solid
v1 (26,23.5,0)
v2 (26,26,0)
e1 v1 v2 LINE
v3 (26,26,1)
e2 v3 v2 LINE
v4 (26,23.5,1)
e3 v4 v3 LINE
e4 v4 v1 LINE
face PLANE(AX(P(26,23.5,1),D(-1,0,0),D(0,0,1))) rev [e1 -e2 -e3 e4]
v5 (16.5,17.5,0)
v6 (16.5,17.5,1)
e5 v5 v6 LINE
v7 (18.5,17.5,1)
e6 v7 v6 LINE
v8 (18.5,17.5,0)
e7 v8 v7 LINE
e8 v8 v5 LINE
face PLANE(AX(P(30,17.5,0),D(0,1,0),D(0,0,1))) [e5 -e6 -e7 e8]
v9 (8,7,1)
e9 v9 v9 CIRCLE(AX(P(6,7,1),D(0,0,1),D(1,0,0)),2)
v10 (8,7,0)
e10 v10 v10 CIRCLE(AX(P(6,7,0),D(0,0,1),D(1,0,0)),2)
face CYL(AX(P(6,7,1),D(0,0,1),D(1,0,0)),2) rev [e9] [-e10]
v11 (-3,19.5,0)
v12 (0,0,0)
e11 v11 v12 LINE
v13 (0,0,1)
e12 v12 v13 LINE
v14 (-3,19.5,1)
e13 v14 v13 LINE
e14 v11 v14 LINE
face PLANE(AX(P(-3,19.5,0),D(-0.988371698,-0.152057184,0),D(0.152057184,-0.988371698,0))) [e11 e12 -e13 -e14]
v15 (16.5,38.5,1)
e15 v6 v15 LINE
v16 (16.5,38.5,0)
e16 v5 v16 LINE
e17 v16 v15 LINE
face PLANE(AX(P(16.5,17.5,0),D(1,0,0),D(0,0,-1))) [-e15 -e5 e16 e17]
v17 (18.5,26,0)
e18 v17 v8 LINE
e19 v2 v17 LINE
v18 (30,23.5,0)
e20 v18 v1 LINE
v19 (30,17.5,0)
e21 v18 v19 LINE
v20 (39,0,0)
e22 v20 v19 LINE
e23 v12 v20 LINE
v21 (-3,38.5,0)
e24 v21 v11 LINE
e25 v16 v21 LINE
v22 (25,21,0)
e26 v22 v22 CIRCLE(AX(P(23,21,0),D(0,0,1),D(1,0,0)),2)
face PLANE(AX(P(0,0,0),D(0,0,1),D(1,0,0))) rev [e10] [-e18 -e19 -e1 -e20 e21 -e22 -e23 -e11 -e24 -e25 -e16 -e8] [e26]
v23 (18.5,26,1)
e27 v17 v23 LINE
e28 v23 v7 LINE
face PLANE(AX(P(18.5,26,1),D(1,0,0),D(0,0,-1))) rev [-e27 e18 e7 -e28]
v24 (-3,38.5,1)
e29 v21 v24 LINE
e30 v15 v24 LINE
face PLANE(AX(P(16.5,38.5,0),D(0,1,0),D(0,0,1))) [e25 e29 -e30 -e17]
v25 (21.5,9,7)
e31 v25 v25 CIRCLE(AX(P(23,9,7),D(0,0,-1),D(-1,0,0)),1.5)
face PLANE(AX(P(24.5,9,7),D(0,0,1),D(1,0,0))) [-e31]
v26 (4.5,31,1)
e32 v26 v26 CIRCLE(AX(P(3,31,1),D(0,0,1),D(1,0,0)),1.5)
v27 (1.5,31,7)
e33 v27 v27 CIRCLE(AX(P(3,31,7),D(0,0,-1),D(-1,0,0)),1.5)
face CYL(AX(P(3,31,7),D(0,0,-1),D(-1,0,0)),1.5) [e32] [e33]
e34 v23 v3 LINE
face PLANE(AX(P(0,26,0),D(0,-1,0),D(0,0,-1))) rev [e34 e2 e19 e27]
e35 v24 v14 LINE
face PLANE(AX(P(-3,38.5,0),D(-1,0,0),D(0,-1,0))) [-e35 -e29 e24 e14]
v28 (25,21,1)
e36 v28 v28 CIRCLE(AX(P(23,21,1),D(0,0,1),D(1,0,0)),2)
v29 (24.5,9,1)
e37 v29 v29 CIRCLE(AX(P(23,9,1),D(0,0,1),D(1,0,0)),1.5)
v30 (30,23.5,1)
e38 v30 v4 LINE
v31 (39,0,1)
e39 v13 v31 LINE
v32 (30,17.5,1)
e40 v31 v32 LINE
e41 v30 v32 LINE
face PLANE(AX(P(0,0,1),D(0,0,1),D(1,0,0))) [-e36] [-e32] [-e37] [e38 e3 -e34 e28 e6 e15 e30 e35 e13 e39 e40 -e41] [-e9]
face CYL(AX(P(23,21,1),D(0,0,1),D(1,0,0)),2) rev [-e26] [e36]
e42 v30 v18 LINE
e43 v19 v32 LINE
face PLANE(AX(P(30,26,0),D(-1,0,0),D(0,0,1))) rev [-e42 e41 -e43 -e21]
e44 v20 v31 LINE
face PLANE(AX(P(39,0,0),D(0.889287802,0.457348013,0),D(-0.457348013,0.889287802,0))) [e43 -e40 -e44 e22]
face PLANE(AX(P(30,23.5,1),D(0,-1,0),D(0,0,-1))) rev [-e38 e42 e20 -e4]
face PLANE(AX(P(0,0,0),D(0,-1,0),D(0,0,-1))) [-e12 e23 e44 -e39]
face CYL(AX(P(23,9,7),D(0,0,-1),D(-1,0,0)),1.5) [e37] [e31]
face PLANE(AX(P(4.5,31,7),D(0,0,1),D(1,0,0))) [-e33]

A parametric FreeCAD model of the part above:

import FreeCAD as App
import Part
import Sketcher
from FreeCAD import Vector
Q = App.Units.Quantity

doc = App.newDocument("Part")
params = doc.addObject("Spreadsheet::Sheet", "Params")
for row, (alias, value) in enumerate([
    ("sketch1_width", "39 mm"),
    ("sketch1_height", "21 mm"),
    ("sketch1_height2", "19 mm"),
    ("sketch1_width2", "13.5 mm"),
    ("sketch1_width3", "19.5 mm"),
    ("pad1_length", "1 mm"),
    ("sketch2_height", "1 mm"),
    ("sketch2_width", "11.5 mm"),
    ("pad2_length", "8.5 mm"),
    ("sketch3_width", "4 mm"),
    ("sketch3_height", "2.5 mm"),
    ("sketch4_height", "6 mm"),
    ("sketch4_width", "1.5 mm"),
    ("revolution_angle", "360 deg"),
    ("sketch5_height", "6 mm"),
    ("sketch5_width", "1.5 mm"),
    ("revolution2_angle", "360 deg"),
    ("sketch6_diameter", "4 mm"),
    ("hole_diameter", "4 mm"),
], start=1):
    params.set(f"A{row}", alias)
    params.set(f"B{row}", "=" + value)
    params.setAlias(f"B{row}", alias)

body = doc.addObject("PartDesign::Body", "Body")

sketch1 = body.newObject("Sketcher::SketchObject", "Sketch")
sketch1.AttachmentSupport = (doc.getObject("XY_Plane"), [""])
sketch1.MapMode = "FlatFace"
sketch1.AttachmentOffset = App.Placement(Vector(0, 0, 1), App.Rotation())
sketch1.addGeometry(Part.LineSegment(Vector(39, 0, 0), Vector(30, 18, 0)), False)
sketch1.addGeometry(Part.LineSegment(Vector(30, 18, 0), Vector(16, 18, 0)), False)
sketch1.addGeometry(Part.LineSegment(Vector(16, 18, 0), Vector(16, 38, 0)), False)
sketch1.addGeometry(Part.LineSegment(Vector(16, 38, 0), Vector(-3, 38, 0)), False)
sketch1.addGeometry(Part.LineSegment(Vector(-3, 38, 0), Vector(-3, 20, 0)), False)
sketch1.addGeometry(Part.LineSegment(Vector(-3, 20, 0), Vector(0, 0, 0)), False)
sketch1.addGeometry(Part.LineSegment(Vector(0, 0, 0), Vector(39, 0, 0)), False)
sketch1.addConstraint(Sketcher.Constraint("Coincident", 0, 2, 1, 1))
sketch1.addConstraint(Sketcher.Constraint("Coincident", 1, 2, 2, 1))
sketch1.addConstraint(Sketcher.Constraint("Coincident", 2, 2, 3, 1))
sketch1.addConstraint(Sketcher.Constraint("Coincident", 3, 2, 4, 1))
sketch1.addConstraint(Sketcher.Constraint("Coincident", 4, 2, 5, 1))
sketch1.addConstraint(Sketcher.Constraint("Coincident", 5, 2, 6, 1))
sketch1.addConstraint(Sketcher.Constraint("Coincident", 6, 2, 0, 1))
sketch1.addConstraint(Sketcher.Constraint("Horizontal", 1))
sketch1.addConstraint(Sketcher.Constraint("Vertical", 2))
sketch1.addConstraint(Sketcher.Constraint("Horizontal", 3))
sketch1.addConstraint(Sketcher.Constraint("Vertical", 4))
sketch1.addConstraint(Sketcher.Constraint("Horizontal", 6))
sketch1.addConstraint(Sketcher.Constraint("Coincident", 5, 2, -1, 1))
sketch1.addConstraint(Sketcher.Constraint("DistanceX", 6, 1, 6, 2, Q("39 mm")))
sketch1.addConstraint(Sketcher.Constraint("DistanceY", 2, 1, 2, 2, Q("21 mm")))
sketch1.addConstraint(Sketcher.Constraint("DistanceY", 4, 2, 4, 1, Q("19 mm")))
sketch1.addConstraint(Sketcher.Constraint("DistanceX", 1, 2, 1, 1, Q("13.5 mm")))
sketch1.addConstraint(Sketcher.Constraint("DistanceX", 3, 2, 3, 1, Q("19.5 mm")))
sketch1.addConstraint(Sketcher.Constraint("DistanceX", -1, 1, 0, 2, Q("30 mm")))
sketch1.addConstraint(Sketcher.Constraint("DistanceY", -1, 1, 0, 2, Q("17.5 mm")))
sketch1.setExpression("Constraints[13]", "Params.sketch1_width")
sketch1.setExpression("Constraints[14]", "Params.sketch1_height")
sketch1.setExpression("Constraints[15]", "Params.sketch1_height2")
sketch1.setExpression("Constraints[16]", "Params.sketch1_width2")
sketch1.setExpression("Constraints[17]", "Params.sketch1_width3")
pad1 = body.newObject("PartDesign::Pad", "Pad")
pad1.Profile = sketch1
pad1.setExpression("Length", "Params.pad1_length")
pad1.Reversed = True

sketch2 = body.newObject("Sketcher::SketchObject", "Sketch001")
sketch2.AttachmentSupport = (doc.getObject("XZ_Plane"), [""])
sketch2.MapMode = "FlatFace"
sketch2.AttachmentOffset = App.Placement(Vector(0, 0, -17.5), App.Rotation())
sketch2.addGeometry(Part.LineSegment(Vector(30, 1, 0), Vector(30, 0, 0)), False)
sketch2.addGeometry(Part.LineSegment(Vector(30, 0, 0), Vector(18.5, 0, 0)), False)
sketch2.addGeometry(Part.LineSegment(Vector(18.5, 0, 0), Vector(18.5, 1, 0)), False)
sketch2.addGeometry(Part.LineSegment(Vector(18.5, 1, 0), Vector(30, 1, 0)), False)
sketch2.addConstraint(Sketcher.Constraint("Coincident", 0, 2, 1, 1))
sketch2.addConstraint(Sketcher.Constraint("Coincident", 1, 2, 2, 1))
sketch2.addConstraint(Sketcher.Constraint("Coincident", 2, 2, 3, 1))
sketch2.addConstraint(Sketcher.Constraint("Coincident", 3, 2, 0, 1))
sketch2.addConstraint(Sketcher.Constraint("Vertical", 0))
sketch2.addConstraint(Sketcher.Constraint("Horizontal", 1))
sketch2.addConstraint(Sketcher.Constraint("Vertical", 2))
sketch2.addConstraint(Sketcher.Constraint("Horizontal", 3))
sketch2.addConstraint(Sketcher.Constraint("PointOnObject", 0, 2, -1))
sketch2.addConstraint(Sketcher.Constraint("DistanceY", 0, 2, 0, 1, Q("1 mm")))
sketch2.addConstraint(Sketcher.Constraint("DistanceX", 1, 2, 1, 1, Q("11.5 mm")))
sketch2.addConstraint(Sketcher.Constraint("DistanceX", -1, 1, 0, 2, Q("30 mm")))
sketch2.setExpression("Constraints[9]", "Params.sketch2_height")
sketch2.setExpression("Constraints[10]", "Params.sketch2_width")
pad2 = body.newObject("PartDesign::Pad", "Pad001")
pad2.Profile = sketch2
pad2.setExpression("Length", "Params.pad2_length")
pad2.Reversed = True

sketch3 = body.newObject("Sketcher::SketchObject", "Sketch002")
sketch3.AttachmentSupport = (doc.getObject("XY_Plane"), [""])
sketch3.MapMode = "FlatFace"
sketch3.addGeometry(Part.LineSegment(Vector(30, 26, 0), Vector(30, 23.5, 0)), False)
sketch3.addGeometry(Part.LineSegment(Vector(30, 23.5, 0), Vector(26, 23.5, 0)), False)
sketch3.addGeometry(Part.LineSegment(Vector(26, 23.5, 0), Vector(26, 26, 0)), False)
sketch3.addGeometry(Part.LineSegment(Vector(26, 26, 0), Vector(30, 26, 0)), False)
sketch3.addConstraint(Sketcher.Constraint("Coincident", 0, 2, 1, 1))
sketch3.addConstraint(Sketcher.Constraint("Coincident", 1, 2, 2, 1))
sketch3.addConstraint(Sketcher.Constraint("Coincident", 2, 2, 3, 1))
sketch3.addConstraint(Sketcher.Constraint("Coincident", 3, 2, 0, 1))
sketch3.addConstraint(Sketcher.Constraint("Vertical", 0))
sketch3.addConstraint(Sketcher.Constraint("Horizontal", 1))
sketch3.addConstraint(Sketcher.Constraint("Vertical", 2))
sketch3.addConstraint(Sketcher.Constraint("Horizontal", 3))
sketch3.addConstraint(Sketcher.Constraint("DistanceX", 1, 2, 1, 1, Q("4 mm")))
sketch3.addConstraint(Sketcher.Constraint("DistanceY", 0, 2, 0, 1, Q("2.5 mm")))
sketch3.addConstraint(Sketcher.Constraint("DistanceX", -1, 1, 0, 2, Q("30 mm")))
sketch3.addConstraint(Sketcher.Constraint("DistanceY", -1, 1, 2, 2, Q("26 mm")))
sketch3.setExpression("Constraints[8]", "Params.sketch3_width")
sketch3.setExpression("Constraints[9]", "Params.sketch3_height")
pocket1 = body.newObject("PartDesign::Pocket", "Pocket")
pocket1.Profile = sketch3
pocket1.Type = "ThroughAll"
pocket1.Reversed = True

sketch4 = body.newObject("Sketcher::SketchObject", "Sketch003")
sketch4.AttachmentSupport = (doc.getObject("XZ_Plane"), [""])
sketch4.MapMode = "FlatFace"
sketch4.AttachmentOffset = App.Placement(Vector(0, 0, -31), App.Rotation())
sketch4.addGeometry(Part.LineSegment(Vector(3, 7, 0), Vector(3, 1, 0)), False)
sketch4.addGeometry(Part.LineSegment(Vector(3, 1, 0), Vector(4.5, 1, 0)), False)
sketch4.addGeometry(Part.LineSegment(Vector(4.5, 1, 0), Vector(4.5, 7, 0)), False)
sketch4.addGeometry(Part.LineSegment(Vector(4.5, 7, 0), Vector(3, 7, 0)), False)
sketch4.addGeometry(Part.LineSegment(Vector(3, 7, 0), Vector(3, 1, 0)), True)
sketch4.addConstraint(Sketcher.Constraint("Coincident", 0, 2, 1, 1))
sketch4.addConstraint(Sketcher.Constraint("Coincident", 1, 2, 2, 1))
sketch4.addConstraint(Sketcher.Constraint("Coincident", 2, 2, 3, 1))
sketch4.addConstraint(Sketcher.Constraint("Coincident", 3, 2, 0, 1))
sketch4.addConstraint(Sketcher.Constraint("Vertical", 0))
sketch4.addConstraint(Sketcher.Constraint("Horizontal", 1))
sketch4.addConstraint(Sketcher.Constraint("Vertical", 2))
sketch4.addConstraint(Sketcher.Constraint("Horizontal", 3))
sketch4.addConstraint(Sketcher.Constraint("Vertical", 4))
sketch4.addConstraint(Sketcher.Constraint("Coincident", 4, 1, 3, 2))
sketch4.addConstraint(Sketcher.Constraint("Horizontal", 1, 2, 4, 2))
sketch4.addConstraint(Sketcher.Constraint("DistanceY", 0, 2, 0, 1, Q("6 mm")))
sketch4.addConstraint(Sketcher.Constraint("DistanceX", 1, 1, 1, 2, Q("1.5 mm")))
sketch4.addConstraint(Sketcher.Constraint("DistanceX", -1, 1, 0, 2, Q("3 mm")))
sketch4.addConstraint(Sketcher.Constraint("DistanceY", -1, 1, 0, 2, Q("1 mm")))
sketch4.setExpression("Constraints[11]", "Params.sketch4_height")
sketch4.setExpression("Constraints[12]", "Params.sketch4_width")
revolution = body.newObject("PartDesign::Revolution", "Revolution")
revolution.Profile = sketch4
revolution.ReferenceAxis = (sketch4, ["Axis0"])
revolution.setExpression("Angle", "Params.revolution_angle")

sketch5 = body.newObject("Sketcher::SketchObject", "Sketch004")
sketch5.AttachmentSupport = (doc.getObject("XZ_Plane"), [""])
sketch5.MapMode = "FlatFace"
sketch5.AttachmentOffset = App.Placement(Vector(0, 0, -9), App.Rotation())
sketch5.addGeometry(Part.LineSegment(Vector(23, 7, 0), Vector(23, 1, 0)), False)
sketch5.addGeometry(Part.LineSegment(Vector(23, 1, 0), Vector(24.5, 1, 0)), False)
sketch5.addGeometry(Part.LineSegment(Vector(24.5, 1, 0), Vector(24.5, 7, 0)), False)
sketch5.addGeometry(Part.LineSegment(Vector(24.5, 7, 0), Vector(23, 7, 0)), False)
sketch5.addGeometry(Part.LineSegment(Vector(23, 7, 0), Vector(23, 1, 0)), True)
sketch5.addConstraint(Sketcher.Constraint("Coincident", 0, 2, 1, 1))
sketch5.addConstraint(Sketcher.Constraint("Coincident", 1, 2, 2, 1))
sketch5.addConstraint(Sketcher.Constraint("Coincident", 2, 2, 3, 1))
sketch5.addConstraint(Sketcher.Constraint("Coincident", 3, 2, 0, 1))
sketch5.addConstraint(Sketcher.Constraint("Vertical", 0))
sketch5.addConstraint(Sketcher.Constraint("Horizontal", 1))
sketch5.addConstraint(Sketcher.Constraint("Vertical", 2))
sketch5.addConstraint(Sketcher.Constraint("Horizontal", 3))
sketch5.addConstraint(Sketcher.Constraint("Vertical", 4))
sketch5.addConstraint(Sketcher.Constraint("Coincident", 4, 1, 3, 2))
sketch5.addConstraint(Sketcher.Constraint("Horizontal", 1, 2, 4, 2))
sketch5.addConstraint(Sketcher.Constraint("DistanceY", 0, 2, 0, 1, Q("6 mm")))
sketch5.addConstraint(Sketcher.Constraint("DistanceX", 1, 1, 1, 2, Q("1.5 mm")))
sketch5.addConstraint(Sketcher.Constraint("DistanceX", -1, 1, 0, 2, Q("23 mm")))
sketch5.addConstraint(Sketcher.Constraint("DistanceY", -1, 1, 0, 2, Q("1 mm")))
sketch5.setExpression("Constraints[11]", "Params.sketch5_height")
sketch5.setExpression("Constraints[12]", "Params.sketch5_width")
revolution2 = body.newObject("PartDesign::Revolution", "Revolution001")
revolution2.Profile = sketch5
revolution2.ReferenceAxis = (sketch5, ["Axis0"])
revolution2.setExpression("Angle", "Params.revolution2_angle")

sketch6 = body.newObject("Sketcher::SketchObject", "Sketch005")
sketch6.AttachmentSupport = (doc.getObject("XY_Plane"), [""])
sketch6.MapMode = "FlatFace"
sketch6.AttachmentOffset = App.Placement(Vector(0, 0, 1), App.Rotation())
sketch6.addGeometry(Part.Circle(Vector(23, 21, 0), Vector(0, 0, 1), 2), False)
sketch6.addGeometry(Part.Circle(Vector(6, 7, 0), Vector(0, 0, 1), 2), False)
sketch6.addConstraint(Sketcher.Constraint("Equal", 0, 1))
sketch6.addConstraint(Sketcher.Constraint("Diameter", 0, Q("4 mm")))
sketch6.addConstraint(Sketcher.Constraint("DistanceX", -1, 1, 0, 3, Q("23 mm")))
sketch6.addConstraint(Sketcher.Constraint("DistanceY", -1, 1, 0, 3, Q("21 mm")))
sketch6.addConstraint(Sketcher.Constraint("DistanceX", -1, 1, 1, 3, Q("6 mm")))
sketch6.addConstraint(Sketcher.Constraint("DistanceY", -1, 1, 1, 3, Q("7 mm")))
sketch6.setExpression("Constraints[1]", "Params.sketch6_diameter")
doc.recompute()
hole = body.newObject("PartDesign::Hole", "Hole")
hole.Profile = sketch6
hole.ThreadType = "None"
hole.setExpression("Diameter", "Params.hole_diameter")
hole.DepthType = "ThroughAll"

doc.recompute()
